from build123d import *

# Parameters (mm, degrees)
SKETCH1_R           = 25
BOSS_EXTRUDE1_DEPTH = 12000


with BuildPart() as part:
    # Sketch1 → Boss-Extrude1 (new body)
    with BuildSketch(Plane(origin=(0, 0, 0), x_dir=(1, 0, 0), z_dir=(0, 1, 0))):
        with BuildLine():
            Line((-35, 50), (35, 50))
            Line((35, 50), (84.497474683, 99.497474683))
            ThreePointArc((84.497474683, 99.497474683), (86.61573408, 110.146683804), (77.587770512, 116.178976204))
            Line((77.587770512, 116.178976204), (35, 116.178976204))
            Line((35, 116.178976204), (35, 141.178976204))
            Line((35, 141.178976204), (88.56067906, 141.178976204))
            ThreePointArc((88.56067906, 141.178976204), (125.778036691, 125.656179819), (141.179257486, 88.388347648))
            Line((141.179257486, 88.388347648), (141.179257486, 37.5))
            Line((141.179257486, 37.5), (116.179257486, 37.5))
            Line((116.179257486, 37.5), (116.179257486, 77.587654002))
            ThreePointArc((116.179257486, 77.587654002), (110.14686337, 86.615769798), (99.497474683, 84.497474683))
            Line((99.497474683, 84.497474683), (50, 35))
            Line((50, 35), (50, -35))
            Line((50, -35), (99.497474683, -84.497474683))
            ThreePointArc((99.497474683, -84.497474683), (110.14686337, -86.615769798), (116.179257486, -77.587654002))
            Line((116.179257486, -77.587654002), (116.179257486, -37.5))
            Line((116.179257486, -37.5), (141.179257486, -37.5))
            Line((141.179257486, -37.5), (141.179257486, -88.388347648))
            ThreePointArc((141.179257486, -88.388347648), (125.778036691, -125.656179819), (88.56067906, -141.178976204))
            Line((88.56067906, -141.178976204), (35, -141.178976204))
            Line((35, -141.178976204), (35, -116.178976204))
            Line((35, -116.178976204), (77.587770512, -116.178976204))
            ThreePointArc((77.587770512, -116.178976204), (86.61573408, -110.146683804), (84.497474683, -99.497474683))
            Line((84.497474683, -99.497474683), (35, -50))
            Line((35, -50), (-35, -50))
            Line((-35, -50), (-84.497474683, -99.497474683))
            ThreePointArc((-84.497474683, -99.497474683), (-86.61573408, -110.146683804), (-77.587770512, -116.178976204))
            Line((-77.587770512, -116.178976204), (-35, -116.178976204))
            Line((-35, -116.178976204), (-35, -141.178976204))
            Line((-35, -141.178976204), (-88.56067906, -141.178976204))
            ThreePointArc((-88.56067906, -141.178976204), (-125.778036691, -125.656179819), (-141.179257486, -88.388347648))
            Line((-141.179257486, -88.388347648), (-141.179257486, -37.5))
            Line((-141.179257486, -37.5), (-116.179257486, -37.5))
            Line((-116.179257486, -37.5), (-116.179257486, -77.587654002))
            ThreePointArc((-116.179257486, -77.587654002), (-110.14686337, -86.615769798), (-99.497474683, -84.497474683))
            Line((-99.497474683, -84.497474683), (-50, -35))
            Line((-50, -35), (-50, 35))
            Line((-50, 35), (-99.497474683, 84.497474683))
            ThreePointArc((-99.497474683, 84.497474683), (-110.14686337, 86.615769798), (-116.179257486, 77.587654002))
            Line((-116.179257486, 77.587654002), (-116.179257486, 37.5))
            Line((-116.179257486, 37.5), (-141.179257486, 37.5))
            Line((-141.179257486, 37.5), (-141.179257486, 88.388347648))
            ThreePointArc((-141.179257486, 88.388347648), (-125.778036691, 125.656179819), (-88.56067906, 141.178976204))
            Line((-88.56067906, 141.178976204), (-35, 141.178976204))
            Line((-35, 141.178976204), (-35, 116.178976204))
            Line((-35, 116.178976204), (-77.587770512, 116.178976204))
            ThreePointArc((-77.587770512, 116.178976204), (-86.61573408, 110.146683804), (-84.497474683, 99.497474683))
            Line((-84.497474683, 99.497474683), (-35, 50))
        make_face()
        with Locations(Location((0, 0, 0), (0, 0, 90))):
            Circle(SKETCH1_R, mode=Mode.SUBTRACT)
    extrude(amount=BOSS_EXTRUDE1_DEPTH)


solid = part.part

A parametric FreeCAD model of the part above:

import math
import FreeCAD as App
import Part
import Sketcher

doc = App.newDocument("Part")
body = doc.addObject("PartDesign::Body", "Body")

sketch1 = body.newObject("Sketcher::SketchObject", "Sketch")
sketch1.AttachmentSupport = (doc.getObject("XZ_Plane"), [""])
sketch1.MapMode = "FlatFace"
sketch1.addGeometry(Part.LineSegment(App.Vector(35, -50, 0), App.Vector(-35, -50, 0)), False)
sketch1.addGeometry(Part.LineSegment(App.Vector(-35, -50, 0), App.Vector(-84.497475, -99.497475, 0)), False)
sketch1.addGeometry(Part.ArcOfCircle(Part.Circle(App.Vector(-77.587771, -106.407179, 0), App.Vector(0, 0, 1), 9.771797), math.radians(135), math.radians(270)), False)
sketch1.addGeometry(Part.LineSegment(App.Vector(-77.587771, -116.178976, 0), App.Vector(-35, -116.178976, 0)), False)
sketch1.addGeometry(Part.LineSegment(App.Vector(-35, -116.178976, 0), App.Vector(-35, -141.178976, 0)), False)
sketch1.addGeometry(Part.LineSegment(App.Vector(-35, -141.178976, 0), App.Vector(-88.560679, -141.178976, 0)), False)
sketch1.addGeometry(Part.ArcOfCircle(Part.Circle(App.Vector(-88.388348, -88.388348, 0), App.Vector(0, 0, 1), 52.79091), math.radians(-180), math.radians(-90.187038)), False)
sketch1.addGeometry(Part.LineSegment(App.Vector(-141.179257, -88.388348, 0), App.Vector(-141.179257, -37.5, 0)), False)
sketch1.addGeometry(Part.LineSegment(App.Vector(-141.179257, -37.5, 0), App.Vector(-116.179257, -37.5, 0)), False)
sketch1.addGeometry(Part.LineSegment(App.Vector(-116.179257, -37.5, 0), App.Vector(-116.179257, -77.587654, 0)), False)
sketch1.addGeometry(Part.ArcOfCircle(Part.Circle(App.Vector(-106.407295, -77.587654, 0), App.Vector(0, 0, 1), 9.771962), math.radians(-180), math.radians(-45)), False)
sketch1.addGeometry(Part.LineSegment(App.Vector(-99.497475, -84.497475, 0), App.Vector(-50, -35, 0)), False)
sketch1.addGeometry(Part.LineSegment(App.Vector(-50, -35, 0), App.Vector(-50, 35, 0)), False)
sketch1.addGeometry(Part.LineSegment(App.Vector(-50, 35, 0), App.Vector(-99.497475, 84.497475, 0)), False)
sketch1.addGeometry(Part.ArcOfCircle(Part.Circle(App.Vector(-106.407295, 77.587654, 0), App.Vector(0, 0, 1), 9.771962), math.radians(45), math.radians(180)), False)
sketch1.addGeometry(Part.LineSegment(App.Vector(-116.179257, 77.587654, 0), App.Vector(-116.179257, 37.5, 0)), False)
sketch1.addGeometry(Part.LineSegment(App.Vector(-116.179257, 37.5, 0), App.Vector(-141.179257, 37.5, 0)), False)
sketch1.addGeometry(Part.LineSegment(App.Vector(-141.179257, 37.5, 0), App.Vector(-141.179257, 88.388348, 0)), False)
sketch1.addGeometry(Part.ArcOfCircle(Part.Circle(App.Vector(-88.388348, 88.388348, 0), App.Vector(0, 0, 1), 52.79091), math.radians(90.187038), math.radians(180)), False)
sketch1.addGeometry(Part.LineSegment(App.Vector(-88.560679, 141.178976, 0), App.Vector(-35, 141.178976, 0)), False)
sketch1.addGeometry(Part.LineSegment(App.Vector(-35, 141.178976, 0), App.Vector(-35, 116.178976, 0)), False)
sketch1.addGeometry(Part.LineSegment(App.Vector(-35, 116.178976, 0), App.Vector(-77.587771, 116.178976, 0)), False)
sketch1.addGeometry(Part.ArcOfCircle(Part.Circle(App.Vector(-77.587771, 106.407179, 0), App.Vector(0, 0, 1), 9.771797), math.radians(90), math.radians(225)), False)
sketch1.addGeometry(Part.LineSegment(App.Vector(-84.497475, 99.497475, 0), App.Vector(-35, 50, 0)), False)
sketch1.addGeometry(Part.LineSegment(App.Vector(-35, 50, 0), App.Vector(35, 50, 0)), False)
sketch1.addGeometry(Part.LineSegment(App.Vector(35, 50, 0), App.Vector(84.497475, 99.497475, 0)), False)
sketch1.addGeometry(Part.ArcOfCircle(Part.Circle(App.Vector(77.587771, 106.407179, 0), App.Vector(0, 0, 1), 9.771797), math.radians(-45), math.radians(90)), False)
sketch1.addGeometry(Part.LineSegment(App.Vector(77.587771, 116.178976, 0), App.Vector(35, 116.178976, 0)), False)
sketch1.addGeometry(Part.LineSegment(App.Vector(35, 116.178976, 0), App.Vector(35, 141.178976, 0)), False)
sketch1.addGeometry(Part.LineSegment(App.Vector(35, 141.178976, 0), App.Vector(88.560679, 141.178976, 0)), False)
sketch1.addGeometry(Part.ArcOfCircle(Part.Circle(App.Vector(88.388348, 88.388348, 0), App.Vector(0, 0, 1), 52.79091), math.radians(0), math.radians(89.812962)), False)
sketch1.addGeometry(Part.LineSegment(App.Vector(141.179257, 88.388348, 0), App.Vector(141.179257, 37.5, 0)), False)
sketch1.addGeometry(Part.LineSegment(App.Vector(141.179257, 37.5, 0), App.Vector(116.179257, 37.5, 0)), False)
sketch1.addGeometry(Part.LineSegment(App.Vector(116.179257, 37.5, 0), App.Vector(116.179257, 77.587654, 0)), False)
sketch1.addGeometry(Part.ArcOfCircle(Part.Circle(App.Vector(106.407295, 77.587654, 0), App.Vector(0, 0, 1), 9.771962), math.radians(0), math.radians(135)), False)
sketch1.addGeometry(Part.LineSegment(App.Vector(99.497475, 84.497475, 0), App.Vector(50, 35, 0)), False)
sketch1.addGeometry(Part.LineSegment(App.Vector(50, 35, 0), App.Vector(50, -35, 0)), False)
sketch1.addGeometry(Part.LineSegment(App.Vector(50, -35, 0), App.Vector(99.497475, -84.497475, 0)), False)
sketch1.addGeometry(Part.ArcOfCircle(Part.Circle(App.Vector(106.407295, -77.587654, 0), App.Vector(0, 0, 1), 9.771962), math.radians(-135), math.radians(0)), False)
sketch1.addGeometry(Part.LineSegment(App.Vector(116.179257, -77.587654, 0), App.Vector(116.179257, -37.5, 0)), False)
sketch1.addGeometry(Part.LineSegment(App.Vector(116.179257, -37.5, 0), App.Vector(141.179257, -37.5, 0)), False)
sketch1.addGeometry(Part.LineSegment(App.Vector(141.179257, -37.5, 0), App.Vector(141.179257, -88.388348, 0)), False)
sketch1.addGeometry(Part.ArcOfCircle(Part.Circle(App.Vector(88.388348, -88.388348, 0), App.Vector(0, 0, 1), 52.79091), math.radians(-89.812962), math.radians(0)), False)
sketch1.addGeometry(Part.LineSegment(App.Vector(88.560679, -141.178976, 0), App.Vector(35, -141.178976, 0)), False)
sketch1.addGeometry(Part.LineSegment(App.Vector(35, -141.178976, 0), App.Vector(35, -116.178976, 0)), False)
sketch1.addGeometry(Part.LineSegment(App.Vector(35, -116.178976, 0), App.Vector(77.587771, -116.178976, 0)), False)
sketch1.addGeometry(Part.ArcOfCircle(Part.Circle(App.Vector(77.587771, -106.407179, 0), App.Vector(0, 0, 1), 9.771797), math.radians(-90), math.radians(45)), False)
sketch1.addGeometry(Part.LineSegment(App.Vector(84.497475, -99.497475, 0), App.Vector(35, -50, 0)), False)
sketch1.addGeometry(Part.Circle(App.Vector(0, 0, 0), App.Vector(0, 0, 1), 25), False)
sketch1.addConstraint(Sketcher.Constraint("Coincident", 0, 2, 1, 1))
sketch1.addConstraint(Sketcher.Constraint("Tangent", 1, 2, 2, 1))
sketch1.addConstraint(Sketcher.Constraint("Tangent", 2, 2, 3, 1))
sketch1.addConstraint(Sketcher.Constraint("Coincident", 3, 2, 4, 1))
sketch1.addConstraint(Sketcher.Constraint("Coincident", 4, 2, 5, 1))
sketch1.addConstraint(Sketcher.Constraint("Coincident", 5, 2, 6, 2))
sketch1.addConstraint(Sketcher.Constraint("Tangent", 6, 1, 7, 1))
sketch1.addConstraint(Sketcher.Constraint("Coincident", 7, 2, 8, 1))
sketch1.addConstraint(Sketcher.Constraint("Coincident", 8, 2, 9, 1))
sketch1.addConstraint(Sketcher.Constraint("Tangent", 9, 2, 10, 1))
sketch1.addConstraint(Sketcher.Constraint("Tangent", 10, 2, 11, 1))
sketch1.addConstraint(Sketcher.Constraint("Coincident", 11, 2, 12, 1))
sketch1.addConstraint(Sketcher.Constraint("Coincident", 12, 2, 13, 1))
sketch1.addConstraint(Sketcher.Constraint("Tangent", 13, 2, 14, 1))
sketch1.addConstraint(Sketcher.Constraint("Tangent", 14, 2, 15, 1))
sketch1.addConstraint(Sketcher.Constraint("Coincident", 15, 2, 16, 1))
sketch1.addConstraint(Sketcher.Constraint("Coincident", 16, 2, 17, 1))
sketch1.addConstraint(Sketcher.Constraint("Tangent", 17, 2, 18, 2))
sketch1.addConstraint(Sketcher.Constraint("Coincident", 18, 1, 19, 1))
sketch1.addConstraint(Sketcher.Constraint("Coincident", 19, 2, 20, 1))
sketch1.addConstraint(Sketcher.Constraint("Coincident", 20, 2, 21, 1))
sketch1.addConstraint(Sketcher.Constraint("Tangent", 21, 2, 22, 1))
sketch1.addConstraint(Sketcher.Constraint("Tangent", 22, 2, 23, 1))
sketch1.addConstraint(Sketcher.Constraint("Coincident", 23, 2, 24, 1))
sketch1.addConstraint(Sketcher.Constraint("Coincident", 24, 2, 25, 1))
sketch1.addConstraint(Sketcher.Constraint("Tangent", 25, 2, 26, 1))
sketch1.addConstraint(Sketcher.Constraint("Tangent", 26, 2, 27, 1))
sketch1.addConstraint(Sketcher.Constraint("Coincident", 27, 2, 28, 1))
sketch1.addConstraint(Sketcher.Constraint("Coincident", 28, 2, 29, 1))
sketch1.addConstraint(Sketcher.Constraint("Coincident", 29, 2, 30, 2))
sketch1.addConstraint(Sketcher.Constraint("Tangent", 30, 1, 31, 1))
sketch1.addConstraint(Sketcher.Constraint("Coincident", 31, 2, 32, 1))
sketch1.addConstraint(Sketcher.Constraint("Coincident", 32, 2, 33, 1))
sketch1.addConstraint(Sketcher.Constraint("Tangent", 33, 2, 34, 1))
sketch1.addConstraint(Sketcher.Constraint("Tangent", 34, 2, 35, 1))
sketch1.addConstraint(Sketcher.Constraint("Coincident", 35, 2, 36, 1))
sketch1.addConstraint(Sketcher.Constraint("Coincident", 36, 2, 37, 1))
sketch1.addConstraint(Sketcher.Constraint("Tangent", 37, 2, 38, 1))
sketch1.addConstraint(Sketcher.Constraint("Tangent", 38, 2, 39, 1))
sketch1.addConstraint(Sketcher.Constraint("Coincident", 39, 2, 40, 1))
sketch1.addConstraint(Sketcher.Constraint("Coincident", 40, 2, 41, 1))
sketch1.addConstraint(Sketcher.Constraint("Tangent", 41, 2, 42, 2))
sketch1.addConstraint(Sketcher.Constraint("Coincident", 42, 1, 43, 1))
sketch1.addConstraint(Sketcher.Constraint("Coincident", 43, 2, 44, 1))
sketch1.addConstraint(Sketcher.Constraint("Coincident", 44, 2, 45, 1))
sketch1.addConstraint(Sketcher.Constraint("Tangent", 45, 2, 46, 1))
sketch1.addConstraint(Sketcher.Constraint("Tangent", 46, 2, 47, 1))
sketch1.addConstraint(Sketcher.Constraint("Coincident", 47, 2, 0, 1))
sketch1.addConstraint(Sketcher.Constraint("Horizontal", 0))
sketch1.addConstraint(Sketcher.Constraint("Horizontal", 3))
sketch1.addConstraint(Sketcher.Constraint("Vertical", 4))
sketch1.addConstraint(Sketcher.Constraint("Horizontal", 5))
sketch1.addConstraint(Sketcher.Constraint("Vertical", 7))
sketch1.addConstraint(Sketcher.Constraint("Horizontal", 8))
sketch1.addConstraint(Sketcher.Constraint("Vertical", 9))
sketch1.addConstraint(Sketcher.Constraint("Vertical", 12))
sketch1.addConstraint(Sketcher.Constraint("Vertical", 15))
sketch1.addConstraint(Sketcher.Constraint("Horizontal", 16))
sketch1.addConstraint(Sketcher.Constraint("Vertical", 17))
sketch1.addConstraint(Sketcher.Constraint("Horizontal", 19))
sketch1.addConstraint(Sketcher.Constraint("Vertical", 20))
sketch1.addConstraint(Sketcher.Constraint("Horizontal", 21))
sketch1.addConstraint(Sketcher.Constraint("Horizontal", 24))
sketch1.addConstraint(Sketcher.Constraint("Horizontal", 27))
sketch1.addConstraint(Sketcher.Constraint("Vertical", 28))
sketch1.addConstraint(Sketcher.Constraint("Horizontal", 29))
sketch1.addConstraint(Sketcher.Constraint("Vertical", 31))
sketch1.addConstraint(Sketcher.Constraint("Horizontal", 32))
sketch1.addConstraint(Sketcher.Constraint("Vertical", 33))
sketch1.addConstraint(Sketcher.Constraint("Vertical", 36))
sketch1.addConstraint(Sketcher.Constraint("Vertical", 39))
sketch1.addConstraint(Sketcher.Constraint("Horizontal", 40))
sketch1.addConstraint(Sketcher.Constraint("Vertical", 41))
sketch1.addConstraint(Sketcher.Constraint("Horizontal", 43))
sketch1.addConstraint(Sketcher.Constraint("Vertical", 44))
sketch1.addConstraint(Sketcher.Constraint("Horizontal", 45))
sketch1.addConstraint(Sketcher.Constraint("Coincident", 48, 3, -1, 1))
sketch1.addConstraint(Sketcher.Constraint("Equal", 10, 14))
sketch1.addConstraint(Sketcher.Constraint("Equal", 6, 18))
sketch1.addConstraint(Sketcher.Constraint("Equal", 2, 22))
sketch1.addConstraint(Sketcher.Constraint("Equal", 22, 26))
sketch1.addConstraint(Sketcher.Constraint("Equal", 18, 30))
sketch1.addConstraint(Sketcher.Constraint("Equal", 14, 34))
sketch1.addConstraint(Sketcher.Constraint("Equal", 34, 38))
sketch1.addConstraint(Sketcher.Constraint("Equal", 30, 42))
sketch1.addConstraint(Sketcher.Constraint("Equal", 26, 46))
sketch1.addConstraint(Sketcher.Constraint("Symmetric", 2, 3, 26, 3, -1, 1))
sketch1.addConstraint(Sketcher.Constraint("Symmetric", 6, 3, 30, 3, -1, 1))
sketch1.addConstraint(Sketcher.Constraint("Symmetric", 10, 3, 34, 3, -1, 1))
sketch1.addConstraint(Sketcher.Constraint("Symmetric", 14, 3, 38, 3, -1, 1))
sketch1.addConstraint(Sketcher.Constraint("Symmetric", 18, 3, 42, 3, -1, 1))
sketch1.addConstraint(Sketcher.Constraint("Symmetric", 22, 3, 46, 3, -1, 1))
sketch1.addConstraint(Sketcher.Constraint("Symmetric", 0, 2, 24, 2, -1, 1))
sketch1.addConstraint(Sketcher.Constraint("Symmetric", 4, 2, 28, 2, -1, 1))
sketch1.addConstraint(Sketcher.Constraint("Symmetric", 11, 2, 35, 2, -1, 1))
sketch1.addConstraint(Sketcher.Constraint("Symmetric", 19, 2, 43, 2, -1, 1))
sketch1.addConstraint(Sketcher.Constraint("Symmetric", 22, 3, 26, 3, -2))
sketch1.addConstraint(Sketcher.Constraint("Symmetric", 18, 3, 30, 3, -2))
sketch1.addConstraint(Sketcher.Constraint("Symmetric", 14, 3, 34, 3, -2))
sketch1.addConstraint(Sketcher.Constraint("Symmetric", 19, 2, 28, 2, -2))
sketch1.addConstraint(Sketcher.Constraint("Parallel", 1, 11))
sketch1.addConstraint(Sketcher.Constraint("Perpendicular", 11, 13))
sketch1.addConstraint(Sketcher.Constraint("Parallel", 13, 23))
sketch1.addConstraint(Sketcher.Constraint("Perpendicular", 35, 37))
sketch1.addConstraint(Sketcher.Constraint("Parallel", 37, 47))
sketch1.addConstraint(Sketcher.Constraint("Horizontal", 22, 2, 25, 2))
sketch1.addConstraint(Sketcher.Constraint("Horizontal", 16, 2, 31, 2))
sketch1.addConstraint(Sketcher.Constraint("Horizontal", 8, 2, 39, 2))
sketch1.addConstraint(Sketcher.Constraint("Vertical", 0, 2, 3, 2))
sketch1.addConstraint(Sketcher.Constraint("Equal", 40, 4))
sketch1.addConstraint(Sketcher.Constraint("Equal", 24, 12))
sketch1.addConstraint(Sketcher.Constraint("Equal", 9, 15))
sketch1.addConstraint(Sketcher.Constraint("Equal", 1, 11))
sketch1.addConstraint(Sketcher.Constraint("Diameter", 48, 50.0))
sketch1.addConstraint(Sketcher.Constraint("DistanceX", 0, 2, 0, 1, 70.0))
sketch1.addConstraint(Sketcher.Constraint("DistanceX", 8, 1, 8, 2, 25.0))
sketch1.addConstraint(Sketcher.Constraint("Distance", 1, 70.0))
sketch1.addConstraint(Sketcher.Constraint("DistanceY", 0, 2, -1, 1, 50.0))
sketch1.addConstraint(Sketcher.Constraint("DistanceX", 11, 2, -1, 1, 50.0))
sketch1.addConstraint(Sketcher.Constraint("DistanceY", 7, 2, -1, 1, 37.5))
sketch1.addConstraint(Sketcher.Constraint("Radius", 6, 52.79091))
sketch1.addConstraint(Sketcher.Constraint("Radius", 2, 9.771797))
sketch1.addConstraint(Sketcher.Constraint("Radius", 10, 9.771962))
sketch1.addConstraint(Sketcher.Constraint("DistanceX", 5, 2, 5, 1, 53.560679))
pad1 = body.newObject("PartDesign::Pad", "Pad")
pad1.Profile = sketch1
pad1.Length = 12000
pad1.Reversed = True

doc.recompute()
